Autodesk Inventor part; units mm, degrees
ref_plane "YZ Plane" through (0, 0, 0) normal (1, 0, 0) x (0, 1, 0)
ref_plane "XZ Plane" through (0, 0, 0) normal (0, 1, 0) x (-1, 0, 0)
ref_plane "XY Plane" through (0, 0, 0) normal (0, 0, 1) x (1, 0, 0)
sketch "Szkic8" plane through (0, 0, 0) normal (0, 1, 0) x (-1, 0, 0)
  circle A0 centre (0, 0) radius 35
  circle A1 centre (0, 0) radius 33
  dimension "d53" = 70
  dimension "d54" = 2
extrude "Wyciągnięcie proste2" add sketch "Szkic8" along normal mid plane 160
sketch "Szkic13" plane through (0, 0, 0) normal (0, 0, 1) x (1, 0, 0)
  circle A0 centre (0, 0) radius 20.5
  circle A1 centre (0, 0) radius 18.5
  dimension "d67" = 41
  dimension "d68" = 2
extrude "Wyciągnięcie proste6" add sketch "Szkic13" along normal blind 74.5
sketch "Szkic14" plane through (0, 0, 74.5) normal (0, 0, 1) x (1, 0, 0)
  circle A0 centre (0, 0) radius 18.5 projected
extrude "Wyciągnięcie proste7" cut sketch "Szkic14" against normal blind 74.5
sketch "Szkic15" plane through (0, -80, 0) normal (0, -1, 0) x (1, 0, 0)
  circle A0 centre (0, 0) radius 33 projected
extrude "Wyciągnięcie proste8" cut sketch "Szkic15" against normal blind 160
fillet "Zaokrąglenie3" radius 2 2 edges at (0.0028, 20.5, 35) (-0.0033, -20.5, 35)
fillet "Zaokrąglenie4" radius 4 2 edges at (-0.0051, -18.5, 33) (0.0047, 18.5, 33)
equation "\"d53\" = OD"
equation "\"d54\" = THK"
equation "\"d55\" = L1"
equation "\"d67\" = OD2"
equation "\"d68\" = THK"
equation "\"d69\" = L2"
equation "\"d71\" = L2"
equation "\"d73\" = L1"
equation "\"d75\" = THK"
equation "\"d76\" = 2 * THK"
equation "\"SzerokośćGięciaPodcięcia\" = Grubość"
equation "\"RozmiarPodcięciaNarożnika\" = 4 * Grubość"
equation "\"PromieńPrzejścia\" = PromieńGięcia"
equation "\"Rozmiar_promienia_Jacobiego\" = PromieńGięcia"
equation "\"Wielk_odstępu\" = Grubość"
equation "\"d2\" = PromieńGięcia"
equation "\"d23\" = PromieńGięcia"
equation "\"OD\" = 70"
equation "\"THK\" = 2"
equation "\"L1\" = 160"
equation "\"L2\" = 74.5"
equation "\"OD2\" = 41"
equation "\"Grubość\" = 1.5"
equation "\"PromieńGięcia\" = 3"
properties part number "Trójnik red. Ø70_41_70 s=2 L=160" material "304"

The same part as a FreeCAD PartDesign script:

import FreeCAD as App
import Part
import Sketcher
from FreeCAD import Vector
Q = App.Units.Quantity


def edges_at(feature, points):
    """Names of the edges that pass closest to the given points."""
    edges = feature.Shape.Edges
    near = lambda p: min(range(len(edges)), key=lambda i: edges[i].distToShape(Part.Vertex(*p))[0])
    return sorted({f"Edge{near(p) + 1}" for p in points})

doc = App.newDocument("Part")
body = doc.addObject("PartDesign::Body", "Body")

# Sketch on XZ plane
sketch1 = body.newObject("Sketcher::SketchObject", "Sketch")
sketch1.AttachmentSupport = (doc.getObject("XZ_Plane"), [""])
sketch1.MapMode = "FlatFace"
sketch1.addGeometry([
    Part.Circle(Vector(0, 0, 0), Vector(0, 0, 1), 35),
    Part.Circle(Vector(0, 0, 0), Vector(0, 0, 1), 33),
], False)
sketch1.addConstraint([
    Sketcher.Constraint("Coincident", 0, 3, -1, 1),
    Sketcher.Constraint("Coincident", 1, 3, -1, 1),
    Sketcher.Constraint("Diameter", 0, Q("70 mm")),
    Sketcher.Constraint("Diameter", 1, Q("66 mm")),
])
pad1 = body.newObject("PartDesign::Pad", "Pad")
pad1.Profile = sketch1
pad1.Length = 160
pad1.Midplane = True

# Sketch on XY plane
sketch2 = body.newObject("Sketcher::SketchObject", "Sketch001")
sketch2.AttachmentSupport = (doc.getObject("XY_Plane"), [""])
sketch2.MapMode = "FlatFace"
sketch2.addGeometry([
    Part.Circle(Vector(0, 0, 0), Vector(0, 0, 1), 20),
    Part.Circle(Vector(0, 0, 0), Vector(0, 0, 1), 18),
], False)
sketch2.addConstraint([
    Sketcher.Constraint("Coincident", 0, 3, -1, 1),
    Sketcher.Constraint("Coincident", 1, 3, -1, 1),
    Sketcher.Constraint("Diameter", 0, Q("41 mm")),
    Sketcher.Constraint("Diameter", 1, Q("37 mm")),
])
pad2 = body.newObject("PartDesign::Pad", "Pad001")
pad2.Profile = sketch2
pad2.Length = 74.5

# Sketch on XY plane
sketch3 = body.newObject("Sketcher::SketchObject", "Sketch002")
sketch3.AttachmentSupport = (doc.getObject("XY_Plane"), [""])
sketch3.MapMode = "FlatFace"
sketch3.AttachmentOffset = App.Placement(Vector(0, 0, 74.5), App.Rotation())
sketch3.addGeometry(Part.Circle(Vector(0, 0, 0), Vector(0, 0, 1), 18), False)
sketch3.addConstraint([
    Sketcher.Constraint("Coincident", 0, 3, -1, 1),
    Sketcher.Constraint("Diameter", 0, Q("37 mm")),
])
pocket1 = body.newObject("PartDesign::Pocket", "Pocket")
pocket1.Profile = sketch3
pocket1.Length = 74.5

# Sketch on XZ plane
sketch4 = body.newObject("Sketcher::SketchObject", "Sketch003")
sketch4.AttachmentSupport = (doc.getObject("XZ_Plane"), [""])
sketch4.MapMode = "FlatFace"
sketch4.AttachmentOffset = App.Placement(Vector(0, 0, 80), App.Rotation())
sketch4.addGeometry(Part.Circle(Vector(0, 0, 0), Vector(0, 0, 1), 33), False)
sketch4.addConstraint([
    Sketcher.Constraint("Coincident", 0, 3, -1, 1),
    Sketcher.Constraint("Diameter", 0, Q("66 mm")),
])
pocket2 = body.newObject("PartDesign::Pocket", "Pocket001")
pocket2.Profile = sketch4
pocket2.Length = 160
doc.recompute()

fillet = body.newObject("PartDesign::Fillet", "Fillet")
fillet.Base = (pocket2, edges_at(pocket2, [(0.003, 20.5, 35), (-0.003, -20.5, 35)]))
fillet.Radius = 2
doc.recompute()

fillet2 = body.newObject("PartDesign::Fillet", "Fillet001")
fillet2.Base = (fillet, edges_at(fillet, [(-0.005, -18.5, 33), (0.005, 18.5, 33)]))
fillet2.Radius = 4

doc.recompute()
